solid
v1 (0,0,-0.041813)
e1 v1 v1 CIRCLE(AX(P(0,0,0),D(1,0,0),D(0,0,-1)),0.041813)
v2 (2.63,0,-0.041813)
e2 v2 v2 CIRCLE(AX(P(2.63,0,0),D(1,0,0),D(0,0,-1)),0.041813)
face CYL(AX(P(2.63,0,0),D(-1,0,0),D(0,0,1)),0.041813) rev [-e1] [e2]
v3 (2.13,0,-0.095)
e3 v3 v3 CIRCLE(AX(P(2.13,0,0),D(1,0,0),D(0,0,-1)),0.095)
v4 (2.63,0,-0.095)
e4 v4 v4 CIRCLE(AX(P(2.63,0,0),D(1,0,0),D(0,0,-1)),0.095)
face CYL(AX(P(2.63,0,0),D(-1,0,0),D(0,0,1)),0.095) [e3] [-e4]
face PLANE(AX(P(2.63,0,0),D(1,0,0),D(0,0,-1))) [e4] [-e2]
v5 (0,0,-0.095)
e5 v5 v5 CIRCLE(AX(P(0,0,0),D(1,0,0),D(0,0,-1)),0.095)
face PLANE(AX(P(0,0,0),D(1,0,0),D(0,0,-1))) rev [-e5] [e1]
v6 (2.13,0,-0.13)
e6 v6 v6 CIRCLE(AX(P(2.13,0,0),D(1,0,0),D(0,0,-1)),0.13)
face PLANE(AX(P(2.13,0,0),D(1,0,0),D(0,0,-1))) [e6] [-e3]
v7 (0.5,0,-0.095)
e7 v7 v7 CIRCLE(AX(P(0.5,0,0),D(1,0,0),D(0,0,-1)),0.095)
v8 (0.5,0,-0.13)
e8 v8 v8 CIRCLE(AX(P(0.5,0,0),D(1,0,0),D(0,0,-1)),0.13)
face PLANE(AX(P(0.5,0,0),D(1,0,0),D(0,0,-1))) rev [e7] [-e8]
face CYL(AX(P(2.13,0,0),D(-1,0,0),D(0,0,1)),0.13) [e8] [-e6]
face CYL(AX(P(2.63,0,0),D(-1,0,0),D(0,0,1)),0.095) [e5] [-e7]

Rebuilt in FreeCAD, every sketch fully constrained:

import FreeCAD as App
import Part
import Sketcher
from FreeCAD import Vector
Q = App.Units.Quantity

doc = App.newDocument("Part")
body = doc.addObject("PartDesign::Body", "Body")

sketch1 = body.newObject("Sketcher::SketchObject", "Sketch")
sketch1.AttachmentSupport = (doc.getObject("YZ_Plane"), [""])
sketch1.MapMode = "FlatFace"
sketch1.addGeometry([
    Part.Circle(Vector(0, 0, 0), Vector(0, 0, 1), 0.095),
    Part.Circle(Vector(0, 0, 0), Vector(0, 0, 1), 0.041813),
], False)
sketch1.addConstraint([
    Sketcher.Constraint("Coincident", 0, 3, -1, 1),
    Sketcher.Constraint("Coincident", 1, 3, -1, 1),
    Sketcher.Constraint("Diameter", 0, Q("0.19 mm")),
    Sketcher.Constraint("Diameter", 1, Q("0.083626 mm")),
])
pad1 = body.newObject("PartDesign::Pad", "Pad")
pad1.Profile = sketch1
pad1.Length = 2.63

sketch2 = body.newObject("Sketcher::SketchObject", "Sketch001")
sketch2.AttachmentSupport = (doc.getObject("YZ_Plane"), [""])
sketch2.MapMode = "FlatFace"
sketch2.AttachmentOffset = App.Placement(Vector(0, 0, 0.5), App.Rotation())
sketch2.addGeometry([
    Part.Circle(Vector(0, 0, 0), Vector(0, 0, 1), 0.13),
    Part.Circle(Vector(0, 0, 0), Vector(0, 0, 1), 0.095),
], False)
sketch2.addConstraint([
    Sketcher.Constraint("Coincident", 0, 3, -1, 1),
    Sketcher.Constraint("Coincident", 1, 3, -1, 1),
    Sketcher.Constraint("Diameter", 0, Q("0.26 mm")),
    Sketcher.Constraint("Diameter", 1, Q("0.19 mm")),
])
pad2 = body.newObject("PartDesign::Pad", "Pad001")
pad2.Profile = sketch2
pad2.Length = 1.63

doc.recompute()
